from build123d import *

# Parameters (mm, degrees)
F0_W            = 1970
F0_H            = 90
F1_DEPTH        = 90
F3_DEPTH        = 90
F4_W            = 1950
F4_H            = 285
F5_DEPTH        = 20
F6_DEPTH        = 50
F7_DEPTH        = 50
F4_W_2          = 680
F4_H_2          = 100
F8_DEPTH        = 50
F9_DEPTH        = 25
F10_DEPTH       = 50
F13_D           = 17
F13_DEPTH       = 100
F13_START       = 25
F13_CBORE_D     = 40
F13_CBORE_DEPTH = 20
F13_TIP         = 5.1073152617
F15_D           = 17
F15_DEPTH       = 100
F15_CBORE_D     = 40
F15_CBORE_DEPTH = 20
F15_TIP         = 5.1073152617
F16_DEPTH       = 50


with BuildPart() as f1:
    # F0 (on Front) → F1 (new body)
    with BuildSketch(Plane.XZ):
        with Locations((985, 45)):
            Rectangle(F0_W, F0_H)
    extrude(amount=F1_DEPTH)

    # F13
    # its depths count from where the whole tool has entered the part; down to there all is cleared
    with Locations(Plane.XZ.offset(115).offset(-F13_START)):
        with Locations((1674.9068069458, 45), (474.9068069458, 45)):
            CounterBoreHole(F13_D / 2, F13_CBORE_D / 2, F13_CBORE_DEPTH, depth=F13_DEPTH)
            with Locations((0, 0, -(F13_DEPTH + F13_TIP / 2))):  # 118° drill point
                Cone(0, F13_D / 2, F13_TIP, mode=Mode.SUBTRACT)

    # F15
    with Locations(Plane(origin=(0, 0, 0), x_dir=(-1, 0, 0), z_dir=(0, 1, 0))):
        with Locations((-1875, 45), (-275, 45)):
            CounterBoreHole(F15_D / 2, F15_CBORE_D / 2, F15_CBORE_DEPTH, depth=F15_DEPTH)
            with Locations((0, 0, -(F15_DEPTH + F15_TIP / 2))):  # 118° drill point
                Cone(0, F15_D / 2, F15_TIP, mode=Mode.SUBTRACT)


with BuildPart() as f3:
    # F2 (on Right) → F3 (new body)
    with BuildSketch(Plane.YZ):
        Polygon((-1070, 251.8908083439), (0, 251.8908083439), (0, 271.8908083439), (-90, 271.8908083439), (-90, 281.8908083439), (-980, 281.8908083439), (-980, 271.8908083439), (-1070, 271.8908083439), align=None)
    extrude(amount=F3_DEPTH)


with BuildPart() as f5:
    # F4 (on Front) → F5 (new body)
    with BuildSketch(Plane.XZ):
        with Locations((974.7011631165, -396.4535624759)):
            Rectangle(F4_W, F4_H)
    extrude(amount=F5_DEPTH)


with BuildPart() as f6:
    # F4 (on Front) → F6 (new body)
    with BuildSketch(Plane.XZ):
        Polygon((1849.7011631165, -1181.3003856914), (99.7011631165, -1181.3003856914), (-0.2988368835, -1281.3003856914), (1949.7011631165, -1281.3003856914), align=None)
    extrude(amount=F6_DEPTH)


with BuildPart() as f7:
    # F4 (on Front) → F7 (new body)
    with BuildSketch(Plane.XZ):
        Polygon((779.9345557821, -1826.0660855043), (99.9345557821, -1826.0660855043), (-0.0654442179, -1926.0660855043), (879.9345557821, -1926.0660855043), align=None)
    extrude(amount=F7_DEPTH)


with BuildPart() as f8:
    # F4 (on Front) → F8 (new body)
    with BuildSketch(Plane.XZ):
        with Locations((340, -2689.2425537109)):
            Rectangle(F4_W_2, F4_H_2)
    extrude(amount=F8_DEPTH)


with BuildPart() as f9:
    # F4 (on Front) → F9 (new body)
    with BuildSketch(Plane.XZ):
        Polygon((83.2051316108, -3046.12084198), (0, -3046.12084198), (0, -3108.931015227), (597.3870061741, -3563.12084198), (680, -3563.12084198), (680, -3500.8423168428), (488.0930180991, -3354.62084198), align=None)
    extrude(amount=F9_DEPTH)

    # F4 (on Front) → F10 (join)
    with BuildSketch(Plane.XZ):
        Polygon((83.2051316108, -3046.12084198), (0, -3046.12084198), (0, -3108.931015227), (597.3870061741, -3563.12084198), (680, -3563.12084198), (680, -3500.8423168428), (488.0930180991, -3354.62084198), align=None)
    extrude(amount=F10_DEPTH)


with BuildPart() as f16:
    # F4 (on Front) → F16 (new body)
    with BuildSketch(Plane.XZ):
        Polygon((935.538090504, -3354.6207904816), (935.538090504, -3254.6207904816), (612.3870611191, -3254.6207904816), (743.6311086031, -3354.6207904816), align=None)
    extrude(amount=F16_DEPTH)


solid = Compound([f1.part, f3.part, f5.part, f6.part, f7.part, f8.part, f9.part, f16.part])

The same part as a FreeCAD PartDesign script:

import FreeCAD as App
import Part
import Sketcher
from FreeCAD import Vector

doc = App.newDocument("Part")
body = doc.addObject("PartDesign::Body", "Body")

# Sketch on XZ plane
sketch1 = doc.addObject("Sketcher::SketchObject", "Sketch")
body.addObject(sketch1)
sketch1.AttachmentSupport = (doc.XZ_Plane, [""])
sketch1.MapMode = "FlatFace"
sketch1.addGeometry([
    Part.LineSegment(Vector(0, 90, 0), Vector(0, 0, 0)),
    Part.LineSegment(Vector(0, 0, 0), Vector(1970, 0, 0)),
    Part.LineSegment(Vector(1970, 0, 0), Vector(1970, 90, 0)),
    Part.LineSegment(Vector(1970, 90, 0), Vector(0, 90, 0)),
], False)
sketch1.addConstraint([
    Sketcher.Constraint("Coincident", 0, 2, 1, 1),
    Sketcher.Constraint("Coincident", 1, 2, 2, 1),
    Sketcher.Constraint("Coincident", 2, 2, 3, 1),
    Sketcher.Constraint("Coincident", 3, 2, 0, 1),
    Sketcher.Constraint("Vertical", 0),
    Sketcher.Constraint("Horizontal", 1),
    Sketcher.Constraint("Vertical", 2),
    Sketcher.Constraint("Horizontal", 3),
    Sketcher.Constraint("Coincident", 0, 2, -1, 1),
    Sketcher.Constraint("DistanceX", 1, 1, 1, 2, 1970.0),
    Sketcher.Constraint("DistanceY", 0, 2, 0, 1, 90.0),
])
pad1 = doc.addObject("PartDesign::Pad", "Pad")
body.addObject(pad1)
pad1.Profile = sketch1
pad1.Length = 90

# Sketch on XZ plane
sketch2 = doc.addObject("Sketcher::SketchObject", "Sketch001")
body.addObject(sketch2)
sketch2.AttachmentSupport = (doc.XZ_Plane, [""])
sketch2.MapMode = "FlatFace"
sketch2.AttachmentOffset = App.Placement(Vector(0, 0, 90), App.Rotation())
sketch2.addGeometry([
    Part.Circle(Vector(1675, 45, 0), Vector(0, 0, 1), 8),
    Part.Circle(Vector(475, 45, 0), Vector(0, 0, 1), 8),
], False)
sketch2.addConstraint([
    Sketcher.Constraint("Equal", 0, 1),
    Sketcher.Constraint("Horizontal", 0, 3, 1, 3),
    Sketcher.Constraint("Diameter", 0, 17.0),
    Sketcher.Constraint("DistanceY", -1, 1, 0, 3, 45.0),
    Sketcher.Constraint("DistanceX", 1, 3, 0, 3, 1200.0),
    Sketcher.Constraint("DistanceX", -1, 1, 0, 3, 1674.906807),
])
doc.recompute()
hole = doc.addObject("PartDesign::Hole", "Hole")
body.addObject(hole)
hole.Profile = sketch2
hole.ThreadType = "None"
hole.Diameter = 17
hole.DepthType = "Dimension"
hole.Depth = 100
hole.DrillPoint = "Angled"
hole.DrillPointAngle = 118
hole.HoleCutType = "Counterbore"
hole.HoleCutDiameter = 40
hole.HoleCutDepth = 20

# Sketch on XZ plane
sketch3 = doc.addObject("Sketcher::SketchObject", "Sketch002")
body.addObject(sketch3)
sketch3.AttachmentSupport = (doc.XZ_Plane, [""])
sketch3.MapMode = "FlatFace"
sketch3.addGeometry([
    Part.Circle(Vector(1875, 45, 0), Vector(0, 0, 1), 8),
    Part.Circle(Vector(275, 45, 0), Vector(0, 0, 1), 8),
], False)
sketch3.addConstraint([
    Sketcher.Constraint("Equal", 0, 1),
    Sketcher.Constraint("Horizontal", 0, 3, 1, 3),
    Sketcher.Constraint("Diameter", 0, 17.0),
    Sketcher.Constraint("DistanceX", -1, 1, 0, 3, 1875.0),
    Sketcher.Constraint("DistanceY", -1, 1, 0, 3, 45.0),
    Sketcher.Constraint("DistanceX", -1, 1, 1, 3, 275.0),
])
doc.recompute()
hole2 = doc.addObject("PartDesign::Hole", "Hole001")
body.addObject(hole2)
hole2.Profile = sketch3
hole2.ThreadType = "None"
hole2.Diameter = 17
hole2.DepthType = "Dimension"
hole2.Depth = 100
hole2.DrillPoint = "Angled"
hole2.DrillPointAngle = 118
hole2.HoleCutType = "Counterbore"
hole2.HoleCutDiameter = 40
hole2.HoleCutDepth = 20
hole2.Reversed = True
body2 = doc.addObject("PartDesign::Body", "Body001")

# Sketch on YZ plane
sketch4 = doc.addObject("Sketcher::SketchObject", "Sketch003")
body2.addObject(sketch4)
sketch4.AttachmentSupport = (doc.getObject("YZ_Plane001"), [""])
sketch4.MapMode = "FlatFace"
sketch4.addGeometry([
    Part.LineSegment(Vector(-1070, 252, 0), Vector(0, 252, 0)),  # 0
    Part.LineSegment(Vector(0, 252, 0), Vector(0, 272, 0)),  # 1
    Part.LineSegment(Vector(0, 272, 0), Vector(-90, 272, 0)),  # 2
    Part.LineSegment(Vector(-90, 272, 0), Vector(-90, 282, 0)),  # 3
    Part.LineSegment(Vector(-90, 282, 0), Vector(-980, 282, 0)),  # 4
    Part.LineSegment(Vector(-980, 282, 0), Vector(-980, 272, 0)),  # 5
    Part.LineSegment(Vector(-980, 272, 0), Vector(-1070, 272, 0)),  # 6
    Part.LineSegment(Vector(-1070, 272, 0), Vector(-1070, 252, 0)),  # 7
], False)
sketch4.addConstraint([
    Sketcher.Constraint("Coincident", 0, 2, 1, 1),
    Sketcher.Constraint("Coincident", 1, 2, 2, 1),
    Sketcher.Constraint("Coincident", 2, 2, 3, 1),
    Sketcher.Constraint("Coincident", 3, 2, 4, 1),
    Sketcher.Constraint("Coincident", 4, 2, 5, 1),
    Sketcher.Constraint("Coincident", 5, 2, 6, 1),
    Sketcher.Constraint("Coincident", 6, 2, 7, 1),
    Sketcher.Constraint("Coincident", 7, 2, 0, 1),
    Sketcher.Constraint("Horizontal", 0),
    Sketcher.Constraint("Vertical", 1),
    Sketcher.Constraint("Horizontal", 2),
    Sketcher.Constraint("Vertical", 3),
    Sketcher.Constraint("Horizontal", 4),
    Sketcher.Constraint("Vertical", 5),
    Sketcher.Constraint("Horizontal", 6),
    Sketcher.Constraint("Vertical", 7),
    Sketcher.Constraint("PointOnObject", 0, 2, -2),
    Sketcher.Constraint("Horizontal", 2, 2, 5, 2),
    Sketcher.Constraint("Equal", 2, 6),
    Sketcher.Constraint("DistanceX", 0, 1, 0, 2, 1070.0),
    Sketcher.Constraint("DistanceX", 2, 2, 2, 1, 90.0),
    Sketcher.Constraint("DistanceY", 1, 1, 1, 2, 20.0),
    Sketcher.Constraint("DistanceY", 3, 1, 3, 2, 10.0),
    Sketcher.Constraint("DistanceY", -1, 1, 0, 2, 251.890808),
])
pad2 = doc.addObject("PartDesign::Pad", "Pad001")
body2.addObject(pad2)
pad2.Profile = sketch4
pad2.Length = 90
body3 = doc.addObject("PartDesign::Body", "Body002")

# Sketch on XZ plane
sketch5 = doc.addObject("Sketcher::SketchObject", "Sketch004")
body3.addObject(sketch5)
sketch5.AttachmentSupport = (doc.getObject("XZ_Plane002"), [""])
sketch5.MapMode = "FlatFace"
sketch5.addGeometry([
    Part.LineSegment(Vector(0, -254, 0), Vector(0, -539, 0)),
    Part.LineSegment(Vector(0, -539, 0), Vector(1950, -539, 0)),
    Part.LineSegment(Vector(1950, -539, 0), Vector(1950, -254, 0)),
    Part.LineSegment(Vector(1950, -254, 0), Vector(0, -254, 0)),
], False)
sketch5.addConstraint([
    Sketcher.Constraint("Coincident", 0, 2, 1, 1),
    Sketcher.Constraint("Coincident", 1, 2, 2, 1),
    Sketcher.Constraint("Coincident", 2, 2, 3, 1),
    Sketcher.Constraint("Coincident", 3, 2, 0, 1),
    Sketcher.Constraint("Vertical", 0),
    Sketcher.Constraint("Horizontal", 1),
    Sketcher.Constraint("Vertical", 2),
    Sketcher.Constraint("Horizontal", 3),
    Sketcher.Constraint("DistanceX", 1, 1, 1, 2, 1950.0),
    Sketcher.Constraint("DistanceY", 0, 2, 0, 1, 285.0),
    Sketcher.Constraint("DistanceX", 0, 2, -1, 1, 0.298837),
    Sketcher.Constraint("DistanceY", 0, 2, -1, 1, 538.953562),
])
pad3 = doc.addObject("PartDesign::Pad", "Pad002")
body3.addObject(pad3)
pad3.Profile = sketch5
pad3.Length = 20
body4 = doc.addObject("PartDesign::Body", "Body003")

# Sketch on XZ plane
sketch6 = doc.addObject("Sketcher::SketchObject", "Sketch005")
body4.addObject(sketch6)
sketch6.AttachmentSupport = (doc.getObject("XZ_Plane003"), [""])
sketch6.MapMode = "FlatFace"
sketch6.addGeometry([
    Part.LineSegment(Vector(1850, -1181, 0), Vector(100, -1181, 0)),
    Part.LineSegment(Vector(100, -1181, 0), Vector(0, -1281, 0)),
    Part.LineSegment(Vector(0, -1281, 0), Vector(1950, -1281, 0)),
    Part.LineSegment(Vector(1950, -1281, 0), Vector(1850, -1181, 0)),
], False)
sketch6.addConstraint([
    Sketcher.Constraint("Coincident", 0, 2, 1, 1),
    Sketcher.Constraint("Coincident", 1, 2, 2, 1),
    Sketcher.Constraint("Coincident", 2, 2, 3, 1),
    Sketcher.Constraint("Coincident", 3, 2, 0, 1),
    Sketcher.Constraint("Horizontal", 0),
    Sketcher.Constraint("Horizontal", 2),
    Sketcher.Constraint("Perpendicular", 1, 3),
    Sketcher.Constraint("Equal", 1, 3),
    Sketcher.Constraint("DistanceX", 0, 2, 0, 1, 1750.0),
    Sketcher.Constraint("DistanceX", 2, 1, 2, 2, 1950.0),
    Sketcher.Constraint("DistanceX", -1, 1, 0, 2, 99.701163),
    Sketcher.Constraint("DistanceY", 0, 2, -1, 1, 1181.300386),
])
pad4 = doc.addObject("PartDesign::Pad", "Pad003")
body4.addObject(pad4)
pad4.Profile = sketch6
pad4.Length = 50
body5 = doc.addObject("PartDesign::Body", "Body004")

# Sketch on XZ plane
sketch7 = doc.addObject("Sketcher::SketchObject", "Sketch006")
body5.addObject(sketch7)
sketch7.AttachmentSupport = (doc.getObject("XZ_Plane004"), [""])
sketch7.MapMode = "FlatFace"
sketch7.addGeometry([
    Part.LineSegment(Vector(780, -1826, 0), Vector(100, -1826, 0)),
    Part.LineSegment(Vector(100, -1826, 0), Vector(0, -1926, 0)),
    Part.LineSegment(Vector(0, -1926, 0), Vector(880, -1926, 0)),
    Part.LineSegment(Vector(880, -1926, 0), Vector(780, -1826, 0)),
], False)
sketch7.addConstraint([
    Sketcher.Constraint("Coincident", 0, 2, 1, 1),
    Sketcher.Constraint("Coincident", 1, 2, 2, 1),
    Sketcher.Constraint("Coincident", 2, 2, 3, 1),
    Sketcher.Constraint("Coincident", 3, 2, 0, 1),
    Sketcher.Constraint("Horizontal", 0),
    Sketcher.Constraint("Horizontal", 2),
    Sketcher.Constraint("Perpendicular", 1, 3),
    Sketcher.Constraint("Equal", 1, 3),
    Sketcher.Constraint("DistanceX", 0, 2, 0, 1, 680.0),
    Sketcher.Constraint("DistanceX", 2, 1, 2, 2, 880.0),
    Sketcher.Constraint("DistanceX", -1, 1, 0, 2, 99.934556),
    Sketcher.Constraint("DistanceY", 0, 2, -1, 1, 1826.066086),
])
pad5 = doc.addObject("PartDesign::Pad", "Pad004")
body5.addObject(pad5)
pad5.Profile = sketch7
pad5.Length = 50
body6 = doc.addObject("PartDesign::Body", "Body005")

# Sketch on XZ plane
sketch8 = doc.addObject("Sketcher::SketchObject", "Sketch007")
body6.addObject(sketch8)
sketch8.AttachmentSupport = (doc.getObject("XZ_Plane005"), [""])
sketch8.MapMode = "FlatFace"
sketch8.addGeometry([
    Part.LineSegment(Vector(0, -2639, 0), Vector(0, -2739, 0)),
    Part.LineSegment(Vector(0, -2739, 0), Vector(680, -2739, 0)),
    Part.LineSegment(Vector(680, -2739, 0), Vector(680, -2639, 0)),
    Part.LineSegment(Vector(680, -2639, 0), Vector(0, -2639, 0)),
], False)
sketch8.addConstraint([
    Sketcher.Constraint("Coincident", 0, 2, 1, 1),
    Sketcher.Constraint("Coincident", 1, 2, 2, 1),
    Sketcher.Constraint("Coincident", 2, 2, 3, 1),
    Sketcher.Constraint("Coincident", 3, 2, 0, 1),
    Sketcher.Constraint("Vertical", 0),
    Sketcher.Constraint("Horizontal", 1),
    Sketcher.Constraint("Vertical", 2),
    Sketcher.Constraint("Horizontal", 3),
    Sketcher.Constraint("PointOnObject", 0, 2, -2),
    Sketcher.Constraint("DistanceX", 1, 1, 1, 2, 680.0),
    Sketcher.Constraint("DistanceY", 0, 2, 0, 1, 100.0),
    Sketcher.Constraint("DistanceY", 0, 2, -1, 1, 2739.242554),
])
pad6 = doc.addObject("PartDesign::Pad", "Pad005")
body6.addObject(pad6)
pad6.Profile = sketch8
pad6.Length = 50
body7 = doc.addObject("PartDesign::Body", "Body006")

# Sketch on XZ plane
sketch9 = doc.addObject("Sketcher::SketchObject", "Sketch008")
body7.addObject(sketch9)
sketch9.AttachmentSupport = (doc.getObject("XZ_Plane006"), [""])
sketch9.MapMode = "FlatFace"
sketch9.addGeometry([
    Part.LineSegment(Vector(83, -3046, 0), Vector(0, -3046, 0)),  # 0
    Part.LineSegment(Vector(0, -3046, 0), Vector(0, -3109, 0)),  # 1
    Part.LineSegment(Vector(0, -3109, 0), Vector(597, -3563, 0)),  # 2
    Part.LineSegment(Vector(597, -3563, 0), Vector(680, -3563, 0)),  # 3
    Part.LineSegment(Vector(680, -3563, 0), Vector(680, -3501, 0)),  # 4
    Part.LineSegment(Vector(680, -3501, 0), Vector(83, -3046, 0)),  # 5
], False)
sketch9.addConstraint([
    Sketcher.Constraint("Coincident", 0, 2, 1, 1),
    Sketcher.Constraint("Coincident", 1, 2, 2, 1),
    Sketcher.Constraint("Coincident", 2, 2, 3, 1),
    Sketcher.Constraint("Coincident", 3, 2, 4, 1),
    Sketcher.Constraint("Coincident", 4, 2, 5, 1),
    Sketcher.Constraint("Coincident", 5, 2, 0, 1),
    Sketcher.Constraint("Horizontal", 0),
    Sketcher.Constraint("Vertical", 1),
    Sketcher.Constraint("Horizontal", 3),
    Sketcher.Constraint("Vertical", 4),
    Sketcher.Constraint("PointOnObject", 0, 2, -2),
    Sketcher.Constraint("DistanceX", -1, 1, 3, 2, 680.0),
    Sketcher.Constraint("DistanceY", 2, 2, 0, 2, 517.0),
    Sketcher.Constraint("DistanceX", 0, 2, 0, 1, 83.205132),
    Sketcher.Constraint("DistanceY", 4, 2, 1, 2, 391.911302),
    Sketcher.Constraint("DistanceX", 3, 1, 3, 2, 82.612994),
    Sketcher.Constraint("DistanceY", 1, 2, 1, 1, 62.810173),
    Sketcher.Constraint("DistanceY", 0, 2, -1, 1, 3046.120842),
])
pad7 = doc.addObject("PartDesign::Pad", "Pad006")
body7.addObject(pad7)
pad7.Profile = sketch9
pad7.Length = 25

# Sketch on XZ plane
sketch10 = doc.addObject("Sketcher::SketchObject", "Sketch009")
body7.addObject(sketch10)
sketch10.AttachmentSupport = (doc.getObject("XZ_Plane006"), [""])
sketch10.MapMode = "FlatFace"
sketch10.addGeometry([
    Part.LineSegment(Vector(83, -3046, 0), Vector(0, -3046, 0)),  # 0
    Part.LineSegment(Vector(0, -3046, 0), Vector(0, -3109, 0)),  # 1
    Part.LineSegment(Vector(0, -3109, 0), Vector(597, -3563, 0)),  # 2
    Part.LineSegment(Vector(597, -3563, 0), Vector(680, -3563, 0)),  # 3
    Part.LineSegment(Vector(680, -3563, 0), Vector(680, -3501, 0)),  # 4
    Part.LineSegment(Vector(680, -3501, 0), Vector(83, -3046, 0)),  # 5
], False)
sketch10.addConstraint([
    Sketcher.Constraint("Coincident", 0, 2, 1, 1),
    Sketcher.Constraint("Coincident", 1, 2, 2, 1),
    Sketcher.Constraint("Coincident", 2, 2, 3, 1),
    Sketcher.Constraint("Coincident", 3, 2, 4, 1),
    Sketcher.Constraint("Coincident", 4, 2, 5, 1),
    Sketcher.Constraint("Coincident", 5, 2, 0, 1),
    Sketcher.Constraint("Horizontal", 0),
    Sketcher.Constraint("Vertical", 1),
    Sketcher.Constraint("Horizontal", 3),
    Sketcher.Constraint("Vertical", 4),
    Sketcher.Constraint("PointOnObject", 0, 2, -2),
    Sketcher.Constraint("DistanceX", -1, 1, 3, 2, 680.0),
    Sketcher.Constraint("DistanceY", 2, 2, 0, 2, 517.0),
    Sketcher.Constraint("DistanceX", 0, 2, 0, 1, 83.205132),
    Sketcher.Constraint("DistanceY", 4, 2, 1, 2, 391.911302),
    Sketcher.Constraint("DistanceX", 3, 1, 3, 2, 82.612994),
    Sketcher.Constraint("DistanceY", 1, 2, 1, 1, 62.810173),
    Sketcher.Constraint("DistanceY", 0, 2, -1, 1, 3046.120842),
])
pad8 = doc.addObject("PartDesign::Pad", "Pad007")
body7.addObject(pad8)
pad8.Profile = sketch10
pad8.Length = 50
body8 = doc.addObject("PartDesign::Body", "Body007")

# Sketch on XZ plane
sketch11 = doc.addObject("Sketcher::SketchObject", "Sketch010")
body8.addObject(sketch11)
sketch11.AttachmentSupport = (doc.getObject("XZ_Plane007"), [""])
sketch11.MapMode = "FlatFace"
sketch11.addGeometry([
    Part.LineSegment(Vector(936, -3355, 0), Vector(936, -3255, 0)),
    Part.LineSegment(Vector(936, -3255, 0), Vector(612, -3255, 0)),
    Part.LineSegment(Vector(612, -3255, 0), Vector(744, -3355, 0)),
    Part.LineSegment(Vector(744, -3355, 0), Vector(936, -3355, 0)),
], False)
sketch11.addConstraint([
    Sketcher.Constraint("Coincident", 0, 2, 1, 1),
    Sketcher.Constraint("Coincident", 1, 2, 2, 1),
    Sketcher.Constraint("Coincident", 2, 2, 3, 1),
    Sketcher.Constraint("Coincident", 3, 2, 0, 1),
    Sketcher.Constraint("Vertical", 0),
    Sketcher.Constraint("Horizontal", 1),
    Sketcher.Constraint("Horizontal", 3),
    Sketcher.Constraint("DistanceY", 0, 1, 0, 2, 100.0),
    Sketcher.Constraint("Distance", 2, 165.0),
    Sketcher.Constraint("DistanceX", 1, 2, 1, 1, 323.151029),
    Sketcher.Constraint("DistanceX", -1, 1, 0, 2, 935.538091),
    Sketcher.Constraint("DistanceY", 0, 2, -1, 1, 3254.62079),
])
pad9 = doc.addObject("PartDesign::Pad", "Pad008")
body8.addObject(pad9)
pad9.Profile = sketch11
pad9.Length = 50

doc.recompute()
